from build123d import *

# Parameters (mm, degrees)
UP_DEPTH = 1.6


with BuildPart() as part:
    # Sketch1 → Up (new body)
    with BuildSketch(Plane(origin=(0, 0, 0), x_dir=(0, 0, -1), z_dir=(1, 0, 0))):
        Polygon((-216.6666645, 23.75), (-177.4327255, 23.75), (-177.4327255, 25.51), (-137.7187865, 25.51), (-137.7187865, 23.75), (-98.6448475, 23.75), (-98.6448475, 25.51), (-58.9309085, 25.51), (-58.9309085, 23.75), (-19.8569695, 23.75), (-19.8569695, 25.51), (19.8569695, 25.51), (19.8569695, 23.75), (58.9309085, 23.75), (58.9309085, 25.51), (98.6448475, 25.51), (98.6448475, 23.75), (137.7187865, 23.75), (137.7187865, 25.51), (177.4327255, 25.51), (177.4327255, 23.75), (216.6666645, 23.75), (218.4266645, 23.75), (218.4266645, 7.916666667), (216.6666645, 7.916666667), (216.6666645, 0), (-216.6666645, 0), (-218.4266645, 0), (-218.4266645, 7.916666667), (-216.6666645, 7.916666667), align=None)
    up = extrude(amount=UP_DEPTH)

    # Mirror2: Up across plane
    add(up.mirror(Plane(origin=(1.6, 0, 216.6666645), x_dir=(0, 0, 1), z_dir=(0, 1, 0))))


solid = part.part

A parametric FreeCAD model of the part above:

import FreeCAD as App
import Part
import Sketcher
from FreeCAD import Vector

doc = App.newDocument("Part")
params = doc.addObject("Spreadsheet::Sheet", "Params")
for row, (alias, value) in enumerate([
    ("sketch1_width", "1.76 mm"),
    ("pad1_length", "1.6 mm"),
], start=1):
    params.set(f"A{row}", alias)
    params.set(f"B{row}", "=" + value)
    params.setAlias(f"B{row}", alias)

body = doc.addObject("PartDesign::Body", "Body")

sketch1 = body.newObject("Sketcher::SketchObject", "Sketch")
sketch1.AttachmentSupport = (doc.getObject("YZ_Plane"), [""])
sketch1.MapMode = "FlatFace"
sketch1.addGeometry([
    Part.LineSegment(Vector(23.75, 177.432726, 0), Vector(23.75, 216.666664, 0)),
    Part.LineSegment(Vector(23.75, 216.666664, 0), Vector(7.916667, 216.666664, 0)),
    Part.LineSegment(Vector(7.916667, 216.666664, 0), Vector(7.916667, 218.426664, 0)),
    Part.LineSegment(Vector(7.916667, 218.426664, 0), Vector(0, 218.426664, 0)),
    Part.LineSegment(Vector(0, 218.426664, 0), Vector(0, -216.666664, 0)),
    Part.LineSegment(Vector(0, -216.666664, 0), Vector(7.916667, -216.666664, 0)),
    Part.LineSegment(Vector(7.916667, -216.666664, 0), Vector(7.916667, -218.426664, 0)),
    Part.LineSegment(Vector(7.916667, -218.426664, 0), Vector(23.75, -218.426664, 0)),
    Part.LineSegment(Vector(23.75, -218.426664, 0), Vector(23.75, -177.432726, 0)),
    Part.LineSegment(Vector(23.75, -177.432726, 0), Vector(25.51, -177.432726, 0)),
    Part.LineSegment(Vector(25.51, -177.432726, 0), Vector(25.51, -137.718786, 0)),
    Part.LineSegment(Vector(25.51, -137.718786, 0), Vector(23.75, -137.718786, 0)),
    Part.LineSegment(Vector(23.75, -137.718786, 0), Vector(23.75, -98.644847, 0)),
    Part.LineSegment(Vector(23.75, -98.644847, 0), Vector(25.51, -98.644847, 0)),
    Part.LineSegment(Vector(25.51, -98.644847, 0), Vector(25.51, -58.930909, 0)),
    Part.LineSegment(Vector(25.51, -58.930909, 0), Vector(23.75, -58.930909, 0)),
    Part.LineSegment(Vector(23.75, -58.930909, 0), Vector(23.75, -19.85697, 0)),
    Part.LineSegment(Vector(23.75, -19.85697, 0), Vector(25.51, -19.85697, 0)),
    Part.LineSegment(Vector(25.51, -19.85697, 0), Vector(25.51, 19.85697, 0)),
    Part.LineSegment(Vector(25.51, 19.85697, 0), Vector(23.75, 19.85697, 0)),
    Part.LineSegment(Vector(23.75, 19.85697, 0), Vector(23.75, 58.930909, 0)),
    Part.LineSegment(Vector(23.75, 58.930909, 0), Vector(25.51, 58.930909, 0)),
    Part.LineSegment(Vector(25.51, 58.930909, 0), Vector(25.51, 98.644847, 0)),
    Part.LineSegment(Vector(25.51, 98.644847, 0), Vector(23.75, 98.644847, 0)),
    Part.LineSegment(Vector(23.75, 98.644847, 0), Vector(23.75, 137.718786, 0)),
    Part.LineSegment(Vector(23.75, 137.718786, 0), Vector(25.51, 137.718786, 0)),
    Part.LineSegment(Vector(25.51, 137.718786, 0), Vector(25.51, 177.432726, 0)),
    Part.LineSegment(Vector(25.51, 177.432726, 0), Vector(23.75, 177.432726, 0)),
], False)
sketch1.addConstraint([
    Sketcher.Constraint("Coincident", 0, 2, 1, 1),
    Sketcher.Constraint("Coincident", 1, 2, 2, 1),
    Sketcher.Constraint("Coincident", 2, 2, 3, 1),
    Sketcher.Constraint("Coincident", 3, 2, 4, 1),
    Sketcher.Constraint("Coincident", 4, 2, 5, 1),
    Sketcher.Constraint("Coincident", 5, 2, 6, 1),
    Sketcher.Constraint("Coincident", 6, 2, 7, 1),
    Sketcher.Constraint("Coincident", 7, 2, 8, 1),
    Sketcher.Constraint("Coincident", 8, 2, 9, 1),
    Sketcher.Constraint("Coincident", 9, 2, 10, 1),
    Sketcher.Constraint("Coincident", 10, 2, 11, 1),
    Sketcher.Constraint("Coincident", 11, 2, 12, 1),
    Sketcher.Constraint("Coincident", 12, 2, 13, 1),
    Sketcher.Constraint("Coincident", 13, 2, 14, 1),
    Sketcher.Constraint("Coincident", 14, 2, 15, 1),
    Sketcher.Constraint("Coincident", 15, 2, 16, 1),
    Sketcher.Constraint("Coincident", 16, 2, 17, 1),
    Sketcher.Constraint("Coincident", 17, 2, 18, 1),
    Sketcher.Constraint("Coincident", 18, 2, 19, 1),
    Sketcher.Constraint("Coincident", 19, 2, 20, 1),
    Sketcher.Constraint("Coincident", 20, 2, 21, 1),
    Sketcher.Constraint("Coincident", 21, 2, 22, 1),
    Sketcher.Constraint("Coincident", 22, 2, 23, 1),
    Sketcher.Constraint("Coincident", 23, 2, 24, 1),
    Sketcher.Constraint("Coincident", 24, 2, 25, 1),
    Sketcher.Constraint("Coincident", 25, 2, 26, 1),
    Sketcher.Constraint("Coincident", 26, 2, 27, 1),
    Sketcher.Constraint("Coincident", 27, 2, 0, 1),
    Sketcher.Constraint("Vertical", 0),
    Sketcher.Constraint("Horizontal", 1),
    Sketcher.Constraint("Vertical", 2),
    Sketcher.Constraint("Horizontal", 3),
    Sketcher.Constraint("Vertical", 4),
    Sketcher.Constraint("Horizontal", 5),
    Sketcher.Constraint("Vertical", 6),
    Sketcher.Constraint("Horizontal", 7),
    Sketcher.Constraint("Vertical", 8),
    Sketcher.Constraint("Horizontal", 9),
    Sketcher.Constraint("Vertical", 10),
    Sketcher.Constraint("Horizontal", 11),
    Sketcher.Constraint("Vertical", 12),
    Sketcher.Constraint("Horizontal", 13),
    Sketcher.Constraint("Vertical", 14),
    Sketcher.Constraint("Horizontal", 15),
    Sketcher.Constraint("Vertical", 16),
    Sketcher.Constraint("Horizontal", 17),
    Sketcher.Constraint("Vertical", 18),
    Sketcher.Constraint("Horizontal", 19),
    Sketcher.Constraint("Vertical", 20),
    Sketcher.Constraint("Horizontal", 21),
    Sketcher.Constraint("Vertical", 22),
    Sketcher.Constraint("Horizontal", 23),
    Sketcher.Constraint("Vertical", 24),
    Sketcher.Constraint("Horizontal", 25),
    Sketcher.Constraint("Vertical", 26),
    Sketcher.Constraint("Horizontal", 27),
    Sketcher.Constraint("Symmetric", 1, 2, 5, 2, -1),
    Sketcher.Constraint("Symmetric", 16, 2, 19, 2, -1),
    Sketcher.Constraint("Symmetric", 14, 2, 21, 2, -1),
    Sketcher.Constraint("Symmetric", 12, 2, 23, 2, -1),
    Sketcher.Constraint("Symmetric", 10, 2, 25, 2, -1),
    Sketcher.Constraint("Symmetric", 8, 2, 27, 2, -1),
    Sketcher.Constraint("PointOnObject", 3, 2, -2),
    Sketcher.Constraint("Vertical", 8, 2, 11, 2),
    Sketcher.Constraint("Vertical", 10, 2, 13, 2),
    Sketcher.Constraint("Vertical", 12, 2, 15, 2),
    Sketcher.Constraint("Vertical", 14, 2, 17, 2),
    Sketcher.Constraint("Equal", 27, 2),
    Sketcher.Constraint("Equal", 2, 6),
    Sketcher.Constraint("Equal", 10, 14),
    Sketcher.Constraint("Equal", 12, 16),
    Sketcher.Constraint("Equal", 14, 18),
    Sketcher.Constraint("DistanceX", 9, 1, 9, 2, 1.76),
    Sketcher.Constraint("DistanceX", -1, 1, 0, 2, 23.75),
    Sketcher.Constraint("DistanceY", 0, 1, 0, 2, 39.233939),
    Sketcher.Constraint("DistanceY", 4, 2, 4, 1, 435.093329),
    Sketcher.Constraint("DistanceY", 10, 1, 10, 2, 39.713939),
    Sketcher.Constraint("DistanceX", 1, 2, 1, 1, 15.833333),
])
sketch1.setExpression("Constraints[72]", "Params.sketch1_width")
pad1 = body.newObject("PartDesign::Pad", "Pad")
pad1.Profile = sketch1
pad1.setExpression("Length", "Params.pad1_length")
doc.recompute()

mirrored = body.newObject("PartDesign::Mirrored", "Mirrored")
mirrored.Originals = [pad1]
mirrored.MirrorPlane = (doc.getObject("XZ_Plane"), [""])
body.Tip = mirrored

doc.recompute()
